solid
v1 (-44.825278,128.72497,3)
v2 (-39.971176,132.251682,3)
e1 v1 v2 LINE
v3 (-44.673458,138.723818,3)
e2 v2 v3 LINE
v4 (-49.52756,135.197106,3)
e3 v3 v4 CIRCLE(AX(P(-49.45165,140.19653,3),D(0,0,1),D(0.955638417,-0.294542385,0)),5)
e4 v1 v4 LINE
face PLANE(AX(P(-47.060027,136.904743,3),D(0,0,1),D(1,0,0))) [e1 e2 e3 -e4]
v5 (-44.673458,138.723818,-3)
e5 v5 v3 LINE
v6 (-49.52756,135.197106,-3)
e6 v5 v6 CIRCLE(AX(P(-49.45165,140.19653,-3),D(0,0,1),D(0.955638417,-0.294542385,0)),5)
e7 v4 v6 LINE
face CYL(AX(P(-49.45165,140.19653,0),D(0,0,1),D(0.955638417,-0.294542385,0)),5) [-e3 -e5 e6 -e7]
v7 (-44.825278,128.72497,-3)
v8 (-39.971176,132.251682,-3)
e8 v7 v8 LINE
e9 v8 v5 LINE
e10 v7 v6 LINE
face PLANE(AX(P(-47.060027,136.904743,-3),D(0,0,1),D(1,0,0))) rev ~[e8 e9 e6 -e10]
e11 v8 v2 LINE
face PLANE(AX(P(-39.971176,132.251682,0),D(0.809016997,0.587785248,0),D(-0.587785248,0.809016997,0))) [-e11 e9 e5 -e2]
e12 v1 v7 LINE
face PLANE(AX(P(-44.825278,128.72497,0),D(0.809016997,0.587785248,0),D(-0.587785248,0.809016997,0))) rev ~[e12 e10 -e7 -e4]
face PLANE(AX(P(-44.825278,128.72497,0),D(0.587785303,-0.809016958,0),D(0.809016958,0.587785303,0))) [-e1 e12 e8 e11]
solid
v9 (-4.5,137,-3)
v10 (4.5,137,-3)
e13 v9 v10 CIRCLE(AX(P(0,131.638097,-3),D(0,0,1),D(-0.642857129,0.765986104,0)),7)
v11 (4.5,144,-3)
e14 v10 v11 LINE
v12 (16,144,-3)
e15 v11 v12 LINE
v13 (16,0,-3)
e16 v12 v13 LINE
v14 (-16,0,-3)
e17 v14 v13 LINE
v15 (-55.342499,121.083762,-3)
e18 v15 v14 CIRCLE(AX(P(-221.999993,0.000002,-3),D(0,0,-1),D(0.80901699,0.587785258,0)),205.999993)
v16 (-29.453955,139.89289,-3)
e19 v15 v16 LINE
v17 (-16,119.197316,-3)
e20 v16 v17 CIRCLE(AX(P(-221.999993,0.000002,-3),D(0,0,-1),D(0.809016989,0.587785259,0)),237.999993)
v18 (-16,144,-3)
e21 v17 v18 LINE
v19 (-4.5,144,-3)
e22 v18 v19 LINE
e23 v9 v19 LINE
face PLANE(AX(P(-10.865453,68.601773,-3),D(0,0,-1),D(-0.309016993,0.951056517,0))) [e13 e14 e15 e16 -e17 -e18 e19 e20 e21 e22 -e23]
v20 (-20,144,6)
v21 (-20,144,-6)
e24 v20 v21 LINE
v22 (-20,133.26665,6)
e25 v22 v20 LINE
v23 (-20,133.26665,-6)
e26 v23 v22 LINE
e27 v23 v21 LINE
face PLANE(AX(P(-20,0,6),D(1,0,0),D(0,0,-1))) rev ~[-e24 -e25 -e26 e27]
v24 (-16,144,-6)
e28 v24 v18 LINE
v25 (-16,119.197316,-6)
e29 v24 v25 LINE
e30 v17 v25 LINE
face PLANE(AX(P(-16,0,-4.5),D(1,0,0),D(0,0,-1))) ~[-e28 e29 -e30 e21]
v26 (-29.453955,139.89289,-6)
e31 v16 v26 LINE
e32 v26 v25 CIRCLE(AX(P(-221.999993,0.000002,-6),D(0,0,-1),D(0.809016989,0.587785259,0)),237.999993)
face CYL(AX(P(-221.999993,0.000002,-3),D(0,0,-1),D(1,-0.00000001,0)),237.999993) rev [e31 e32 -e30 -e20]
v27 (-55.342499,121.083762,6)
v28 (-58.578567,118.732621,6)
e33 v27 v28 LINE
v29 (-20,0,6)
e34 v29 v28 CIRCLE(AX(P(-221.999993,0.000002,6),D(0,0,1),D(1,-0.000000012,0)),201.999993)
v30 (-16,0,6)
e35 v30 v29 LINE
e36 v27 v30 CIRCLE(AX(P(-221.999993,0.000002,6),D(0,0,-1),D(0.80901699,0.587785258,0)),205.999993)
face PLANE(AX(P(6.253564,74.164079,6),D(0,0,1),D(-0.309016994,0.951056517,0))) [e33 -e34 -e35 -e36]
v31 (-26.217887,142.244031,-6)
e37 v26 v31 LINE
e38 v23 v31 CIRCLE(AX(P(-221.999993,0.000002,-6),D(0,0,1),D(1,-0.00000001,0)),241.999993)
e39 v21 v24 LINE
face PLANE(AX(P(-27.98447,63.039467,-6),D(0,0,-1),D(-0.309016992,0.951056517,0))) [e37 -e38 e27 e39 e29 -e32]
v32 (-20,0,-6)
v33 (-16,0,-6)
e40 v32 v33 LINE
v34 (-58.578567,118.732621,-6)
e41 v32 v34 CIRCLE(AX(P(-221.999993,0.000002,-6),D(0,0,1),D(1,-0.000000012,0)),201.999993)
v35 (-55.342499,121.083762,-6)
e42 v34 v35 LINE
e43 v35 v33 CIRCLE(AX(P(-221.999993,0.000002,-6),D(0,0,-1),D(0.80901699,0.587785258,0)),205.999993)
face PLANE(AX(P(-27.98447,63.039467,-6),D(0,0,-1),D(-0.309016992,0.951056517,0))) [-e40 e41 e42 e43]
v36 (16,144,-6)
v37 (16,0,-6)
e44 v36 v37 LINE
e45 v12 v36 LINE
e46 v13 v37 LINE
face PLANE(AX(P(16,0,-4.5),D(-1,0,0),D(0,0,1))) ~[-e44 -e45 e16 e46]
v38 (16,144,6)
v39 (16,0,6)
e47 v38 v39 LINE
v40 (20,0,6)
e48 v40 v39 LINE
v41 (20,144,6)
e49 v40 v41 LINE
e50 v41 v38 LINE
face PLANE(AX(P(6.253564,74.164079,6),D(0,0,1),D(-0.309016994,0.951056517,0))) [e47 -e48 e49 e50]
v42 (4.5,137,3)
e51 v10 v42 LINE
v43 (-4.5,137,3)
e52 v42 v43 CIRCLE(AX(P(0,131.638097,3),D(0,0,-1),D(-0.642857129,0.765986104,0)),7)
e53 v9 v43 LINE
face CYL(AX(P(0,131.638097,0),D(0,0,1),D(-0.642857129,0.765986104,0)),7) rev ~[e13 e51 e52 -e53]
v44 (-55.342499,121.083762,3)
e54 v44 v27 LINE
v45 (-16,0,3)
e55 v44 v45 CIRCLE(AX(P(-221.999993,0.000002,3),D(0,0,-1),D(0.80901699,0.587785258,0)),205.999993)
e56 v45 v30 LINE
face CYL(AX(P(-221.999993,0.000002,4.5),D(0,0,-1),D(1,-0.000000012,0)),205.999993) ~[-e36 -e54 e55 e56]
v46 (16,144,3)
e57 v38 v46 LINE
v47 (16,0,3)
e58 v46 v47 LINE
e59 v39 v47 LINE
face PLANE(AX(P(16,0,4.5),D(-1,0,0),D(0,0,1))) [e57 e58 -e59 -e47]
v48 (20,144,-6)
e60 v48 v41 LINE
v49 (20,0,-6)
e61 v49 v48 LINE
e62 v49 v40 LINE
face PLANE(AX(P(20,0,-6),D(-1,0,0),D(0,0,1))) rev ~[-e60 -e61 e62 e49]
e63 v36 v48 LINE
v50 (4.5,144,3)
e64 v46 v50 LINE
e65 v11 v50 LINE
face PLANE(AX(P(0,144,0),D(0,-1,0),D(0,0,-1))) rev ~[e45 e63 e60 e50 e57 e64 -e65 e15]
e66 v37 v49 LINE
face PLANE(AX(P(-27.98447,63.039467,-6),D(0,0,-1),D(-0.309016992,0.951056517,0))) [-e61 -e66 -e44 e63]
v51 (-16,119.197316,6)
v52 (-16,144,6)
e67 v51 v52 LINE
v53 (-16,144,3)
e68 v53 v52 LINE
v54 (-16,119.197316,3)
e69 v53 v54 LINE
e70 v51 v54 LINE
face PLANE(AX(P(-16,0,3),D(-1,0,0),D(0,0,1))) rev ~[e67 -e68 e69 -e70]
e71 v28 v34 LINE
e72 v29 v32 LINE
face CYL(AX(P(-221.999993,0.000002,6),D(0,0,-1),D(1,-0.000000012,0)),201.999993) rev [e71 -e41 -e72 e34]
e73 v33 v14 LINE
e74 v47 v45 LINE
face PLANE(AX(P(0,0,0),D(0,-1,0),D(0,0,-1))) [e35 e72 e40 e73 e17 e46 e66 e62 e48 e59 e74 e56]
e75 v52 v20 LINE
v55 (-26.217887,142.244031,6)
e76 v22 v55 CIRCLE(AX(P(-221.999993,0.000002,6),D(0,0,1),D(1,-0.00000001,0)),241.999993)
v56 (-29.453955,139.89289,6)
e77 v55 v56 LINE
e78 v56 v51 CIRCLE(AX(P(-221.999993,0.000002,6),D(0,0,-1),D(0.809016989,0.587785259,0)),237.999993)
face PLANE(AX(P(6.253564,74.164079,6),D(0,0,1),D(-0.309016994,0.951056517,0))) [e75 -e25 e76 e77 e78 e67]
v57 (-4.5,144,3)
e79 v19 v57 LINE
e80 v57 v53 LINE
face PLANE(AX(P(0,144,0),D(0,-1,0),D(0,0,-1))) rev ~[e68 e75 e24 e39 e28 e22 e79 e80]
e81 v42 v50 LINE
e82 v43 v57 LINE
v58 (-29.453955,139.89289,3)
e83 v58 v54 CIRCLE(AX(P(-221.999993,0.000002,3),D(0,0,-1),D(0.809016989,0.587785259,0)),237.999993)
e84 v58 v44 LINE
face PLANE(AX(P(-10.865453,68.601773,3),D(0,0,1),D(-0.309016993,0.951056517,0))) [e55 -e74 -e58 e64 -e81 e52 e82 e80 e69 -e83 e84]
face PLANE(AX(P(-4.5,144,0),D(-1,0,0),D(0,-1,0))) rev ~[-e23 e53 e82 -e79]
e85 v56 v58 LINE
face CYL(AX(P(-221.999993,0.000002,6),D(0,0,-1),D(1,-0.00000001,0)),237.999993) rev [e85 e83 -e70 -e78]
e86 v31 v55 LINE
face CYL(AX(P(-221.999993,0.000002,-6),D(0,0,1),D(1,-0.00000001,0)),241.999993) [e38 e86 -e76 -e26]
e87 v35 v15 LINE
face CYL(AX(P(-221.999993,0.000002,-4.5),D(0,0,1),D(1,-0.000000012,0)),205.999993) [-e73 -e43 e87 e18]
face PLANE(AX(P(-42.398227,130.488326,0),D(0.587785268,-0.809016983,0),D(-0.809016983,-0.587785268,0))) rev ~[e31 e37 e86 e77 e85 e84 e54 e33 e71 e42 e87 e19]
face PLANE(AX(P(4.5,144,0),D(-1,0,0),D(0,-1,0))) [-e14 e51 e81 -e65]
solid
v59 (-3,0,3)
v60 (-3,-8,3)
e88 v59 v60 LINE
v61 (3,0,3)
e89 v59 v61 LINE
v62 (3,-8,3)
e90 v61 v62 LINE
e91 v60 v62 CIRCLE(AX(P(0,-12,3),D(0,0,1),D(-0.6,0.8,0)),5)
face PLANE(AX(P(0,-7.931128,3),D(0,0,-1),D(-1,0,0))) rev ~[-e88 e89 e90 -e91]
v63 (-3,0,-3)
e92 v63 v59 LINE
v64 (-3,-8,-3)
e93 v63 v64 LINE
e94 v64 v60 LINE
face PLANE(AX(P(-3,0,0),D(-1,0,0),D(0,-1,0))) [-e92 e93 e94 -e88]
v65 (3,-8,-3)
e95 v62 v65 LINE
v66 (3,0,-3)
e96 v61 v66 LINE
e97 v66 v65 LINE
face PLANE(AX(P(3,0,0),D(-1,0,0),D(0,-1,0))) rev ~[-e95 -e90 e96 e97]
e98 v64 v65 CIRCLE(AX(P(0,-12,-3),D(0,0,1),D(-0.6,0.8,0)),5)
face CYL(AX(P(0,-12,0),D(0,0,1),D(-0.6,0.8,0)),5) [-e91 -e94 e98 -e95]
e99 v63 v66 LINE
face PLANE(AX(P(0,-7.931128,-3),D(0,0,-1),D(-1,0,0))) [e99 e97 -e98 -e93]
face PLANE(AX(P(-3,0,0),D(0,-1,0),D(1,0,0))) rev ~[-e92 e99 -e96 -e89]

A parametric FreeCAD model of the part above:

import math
import FreeCAD as App
import Part
import Sketcher

V = App.Vector
Q = App.Units.Quantity


def add_polygon(sketch, points):
    """Adds a closed chain of lines whose ends are joined by coincident constraints."""
    first, n = sketch.GeometryCount, len(points)
    for a, b in zip(points, points[1:] + points[:1]):
        sketch.addGeometry(Part.LineSegment(App.Vector(*a, 0), App.Vector(*b, 0)), False)
    for i in range(n):
        sketch.addConstraint(Sketcher.Constraint("Coincident", first + i, 2, first + (i + 1) % n, 1))

doc = App.newDocument("Part")
body = doc.addObject("PartDesign::Body", "Body")

sketch1 = body.newObject("Sketcher::SketchObject", "Sketch")
sketch1.AttachmentSupport = (doc.getObject("XZ_Plane"), [""])
sketch1.MapMode = "FlatFace"
add_polygon(sketch1, [(-20, 6), (-20, -6), (-16, -6), (-16, -3), (16, -3), (16, -6), (20, -6), (20, 6), (16, 6), (16, 3), (-16, 3), (-16, 6)])
sketch1.addConstraint([
    Sketcher.Constraint("Vertical", 0),
    Sketcher.Constraint("Horizontal", 1),
    Sketcher.Constraint("Vertical", 2),
    Sketcher.Constraint("Horizontal", 3),
    Sketcher.Constraint("Vertical", 4),
    Sketcher.Constraint("Horizontal", 5),
    Sketcher.Constraint("Vertical", 6),
    Sketcher.Constraint("Horizontal", 7),
    Sketcher.Constraint("Vertical", 8),
    Sketcher.Constraint("Horizontal", 9),
    Sketcher.Constraint("Vertical", 10),
    Sketcher.Constraint("Horizontal", 11),
    Sketcher.Constraint("Symmetric", 0, 2, 6, 2, -1, 1),
    Sketcher.Constraint("Symmetric", 2, 2, 8, 2, -1, 1),
    Sketcher.Constraint("Symmetric", 4, 2, 10, 2, -1, 1),
    Sketcher.Constraint("Symmetric", 1, 2, 4, 2, -2),
    Sketcher.Constraint("DistanceX", 1, 1, 1, 2, Q("4 mm")),
    Sketcher.Constraint("DistanceX", 3, 1, 3, 2, Q("32 mm")),
    Sketcher.Constraint("DistanceY", 0, 2, 0, 1, Q("12 mm")),
    Sketcher.Constraint("DistanceY", 2, 1, 2, 2, Q("3 mm")),
])

sketch2 = body.newObject("Sketcher::SketchObject", "Sketch001")
sketch2.AttachmentSupport = (doc.getObject("XY_Plane"), [""])
sketch2.MapMode = "FlatFace"
sketch2.addGeometry(Part.ArcOfCircle(Part.Circle(V(-222, 0, 0), V(0, 0, 1), 222), math.radians(0), math.radians(36)), False)
sketch2.addConstraint([
    Sketcher.Constraint("Coincident", 0, 1, -1, 1),
    Sketcher.Constraint("Radius", 0, Q("221.999993 mm")),
    Sketcher.Constraint("DistanceX", 0, 2, -1, 1, Q("42.398227 mm")),
    Sketcher.Constraint("DistanceY", -1, 1, 0, 2, Q("130.488326 mm")),
])
doc.recompute()

additivepipe = body.newObject("PartDesign::AdditivePipe", "AdditivePipe")
additivepipe.Profile = sketch1
additivepipe.Spine = (sketch2, ["Edge1"])

sketch3 = body.newObject("Sketcher::SketchObject", "Sketch002")
sketch3.AttachmentSupport = (doc.getObject("XZ_Plane"), [""])
sketch3.MapMode = "FlatFace"
add_polygon(sketch3, [(-20, 6), (-20, -6), (-16, -6), (-16, -3), (16, -3), (16, -6), (20, -6), (20, 6), (16, 6), (16, 3), (-16, 3), (-16, 6)])
sketch3.addConstraint([
    Sketcher.Constraint("Vertical", 0),
    Sketcher.Constraint("Horizontal", 1),
    Sketcher.Constraint("Vertical", 2),
    Sketcher.Constraint("Horizontal", 3),
    Sketcher.Constraint("Vertical", 4),
    Sketcher.Constraint("Horizontal", 5),
    Sketcher.Constraint("Vertical", 6),
    Sketcher.Constraint("Horizontal", 7),
    Sketcher.Constraint("Vertical", 8),
    Sketcher.Constraint("Horizontal", 9),
    Sketcher.Constraint("Vertical", 10),
    Sketcher.Constraint("Horizontal", 11),
    Sketcher.Constraint("Symmetric", 0, 2, 6, 2, -1, 1),
    Sketcher.Constraint("Symmetric", 2, 2, 8, 2, -1, 1),
    Sketcher.Constraint("Symmetric", 4, 2, 10, 2, -1, 1),
    Sketcher.Constraint("Symmetric", 1, 2, 4, 2, -2),
    Sketcher.Constraint("DistanceX", 1, 1, 1, 2, Q("4 mm")),
    Sketcher.Constraint("DistanceX", 3, 1, 3, 2, Q("32 mm")),
    Sketcher.Constraint("DistanceY", 0, 2, 0, 1, Q("12 mm")),
    Sketcher.Constraint("DistanceY", 2, 1, 2, 2, Q("3 mm")),
])

sketch4 = body.newObject("Sketcher::SketchObject", "Sketch003")
sketch4.AttachmentSupport = (doc.getObject("XY_Plane"), [""])
sketch4.MapMode = "FlatFace"
sketch4.addGeometry(Part.LineSegment(V(0, 0, 0), V(0, 144, 0)), False)
sketch4.addConstraint([
    Sketcher.Constraint("Vertical", 0),
    Sketcher.Constraint("Coincident", 0, 1, -1, 1),
    Sketcher.Constraint("DistanceY", 0, 1, 0, 2, Q("144 mm")),
])
doc.recompute()

additivepipe2 = body.newObject("PartDesign::AdditivePipe", "AdditivePipe001")
additivepipe2.Profile = sketch3
additivepipe2.Spine = (sketch4, ["Edge1"])

sketch5 = body.newObject("Sketcher::SketchObject", "Sketch004")
sketch5.AttachmentSupport = (doc.getObject("XZ_Plane"), [""])
sketch5.MapMode = "FlatFace"
add_polygon(sketch5, [(-16, 6), (-16, 3), (16, 3), (16, 6)])
sketch5.addConstraint([
    Sketcher.Constraint("Vertical", 0),
    Sketcher.Constraint("Horizontal", 1),
    Sketcher.Constraint("Vertical", 2),
    Sketcher.Constraint("Horizontal", 3),
    Sketcher.Constraint("DistanceX", 1, 1, 1, 2, Q("32 mm")),
    Sketcher.Constraint("DistanceY", 0, 2, 0, 1, Q("3 mm")),
    Sketcher.Constraint("DistanceX", 0, 2, -1, 1, Q("16 mm")),
    Sketcher.Constraint("DistanceY", -1, 1, 0, 2, Q("3 mm")),
])

sketch6 = body.newObject("Sketcher::SketchObject", "Sketch005")
sketch6.AttachmentSupport = (doc.getObject("XY_Plane"), [""])
sketch6.MapMode = "FlatFace"
sketch6.addGeometry(Part.ArcOfCircle(Part.Circle(V(-222, 0, 0), V(0, 0, 1), 222), math.radians(0), math.radians(36)), False)
sketch6.addConstraint([
    Sketcher.Constraint("Coincident", 0, 1, -1, 1),
    Sketcher.Constraint("Radius", 0, Q("221.999993 mm")),
    Sketcher.Constraint("DistanceX", 0, 2, -1, 1, Q("42.398227 mm")),
    Sketcher.Constraint("DistanceY", -1, 1, 0, 2, Q("130.488326 mm")),
])
doc.recompute()

subtractivepipe = body.newObject("PartDesign::SubtractivePipe", "SubtractivePipe")
subtractivepipe.Profile = sketch5
subtractivepipe.Spine = (sketch6, ["Edge1"])

sketch7 = body.newObject("Sketcher::SketchObject", "Sketch006")
sketch7.AttachmentSupport = (doc.getObject("XZ_Plane"), [""])
sketch7.MapMode = "FlatFace"
add_polygon(sketch7, [(-16, 6), (-16, 3), (16, 3), (16, 6)])
sketch7.addConstraint([
    Sketcher.Constraint("Vertical", 0),
    Sketcher.Constraint("Horizontal", 1),
    Sketcher.Constraint("Vertical", 2),
    Sketcher.Constraint("Horizontal", 3),
    Sketcher.Constraint("DistanceX", 1, 1, 1, 2, Q("32 mm")),
    Sketcher.Constraint("DistanceY", 0, 2, 0, 1, Q("3 mm")),
    Sketcher.Constraint("DistanceX", 0, 2, -1, 1, Q("16 mm")),
    Sketcher.Constraint("DistanceY", -1, 1, 0, 2, Q("3 mm")),
])

sketch8 = body.newObject("Sketcher::SketchObject", "Sketch007")
sketch8.AttachmentSupport = (doc.getObject("XY_Plane"), [""])
sketch8.MapMode = "FlatFace"
sketch8.addGeometry(Part.LineSegment(V(0, 0, 0), V(0, 144, 0)), False)
sketch8.addConstraint([
    Sketcher.Constraint("Vertical", 0),
    Sketcher.Constraint("Coincident", 0, 1, -1, 1),
    Sketcher.Constraint("DistanceY", 0, 1, 0, 2, Q("144 mm")),
])
doc.recompute()

subtractivepipe2 = body.newObject("PartDesign::SubtractivePipe", "SubtractivePipe001")
subtractivepipe2.Profile = sketch7
subtractivepipe2.Spine = (sketch8, ["Edge1"])
doc.recompute()

mirrored = body.newObject("PartDesign::Mirrored", "Mirrored")
mirrored.Originals = [subtractivepipe]
mirrored.MirrorPlane = (doc.getObject("XY_Plane"), [""])
body.Tip = mirrored
doc.recompute()

mirrored2 = body.newObject("PartDesign::Mirrored", "Mirrored001")
mirrored2.Originals = [subtractivepipe2]
mirrored2.MirrorPlane = (doc.getObject("XY_Plane"), [""])
body.Tip = mirrored2

sketch9 = body.newObject("Sketcher::SketchObject", "Sketch008")
sketch9.AttachmentSupport = (doc.getObject("XY_Plane"), [""])
sketch9.MapMode = "FlatFace"
sketch9.addGeometry([
    Part.LineSegment(V(4, 144, 0), V(-4, 144, 0)),
    Part.LineSegment(V(-4, 144, 0), V(-4, 137, 0)),
    Part.ArcOfCircle(Part.Circle(V(0, 132, 0), V(0, 0, 1), 7), math.radians(130), math.radians(410)),
    Part.LineSegment(V(4, 137, 0), V(4, 144, 0)),
], False)
sketch9.addConstraint([
    Sketcher.Constraint("Coincident", 0, 2, 1, 1),
    Sketcher.Constraint("Coincident", 1, 2, 2, 1),
    Sketcher.Constraint("Coincident", 2, 2, 3, 1),
    Sketcher.Constraint("Coincident", 3, 2, 0, 1),
    Sketcher.Constraint("Horizontal", 0),
    Sketcher.Constraint("Vertical", 1),
    Sketcher.Constraint("Vertical", 3),
    Sketcher.Constraint("Symmetric", 1, 2, 2, 2, -2),
    Sketcher.Constraint("Radius", 2, Q("7 mm")),
    Sketcher.Constraint("DistanceX", 0, 2, 0, 1, Q("9 mm")),
    Sketcher.Constraint("DistanceY", 1, 2, 1, 1, Q("7 mm")),
    Sketcher.Constraint("DistanceY", -1, 1, 0, 2, Q("144 mm")),
])
pocket1 = body.newObject("PartDesign::Pocket", "Pocket")
pocket1.Profile = sketch9
pocket1.Type = "ThroughAll"
pocket1.Midplane = True
body2 = doc.addObject("PartDesign::Body", "Body001")

sketch10 = body2.newObject("Sketcher::SketchObject", "Sketch009")
sketch10.AttachmentSupport = (doc.getObject("XY_Plane001"), [""])
sketch10.MapMode = "FlatFace"
sketch10.addGeometry([
    Part.LineSegment(V(3, 0, 0), V(-3, 0, 0)),
    Part.LineSegment(V(-3, 0, 0), V(-3, -8, 0)),
    Part.ArcOfCircle(Part.Circle(V(0, -12, 0), V(0, 0, 1), 5), math.radians(127), math.radians(413)),
    Part.LineSegment(V(3, -8, 0), V(3, 0, 0)),
], False)
sketch10.addConstraint([
    Sketcher.Constraint("Coincident", 0, 2, 1, 1),
    Sketcher.Constraint("Coincident", 1, 2, 2, 1),
    Sketcher.Constraint("Coincident", 2, 2, 3, 1),
    Sketcher.Constraint("Coincident", 3, 2, 0, 1),
    Sketcher.Constraint("Horizontal", 0),
    Sketcher.Constraint("Vertical", 1),
    Sketcher.Constraint("Vertical", 3),
    Sketcher.Constraint("Symmetric", 0, 2, 3, 2, -1, 1),
    Sketcher.Constraint("PointOnObject", 2, 3, -2),
    Sketcher.Constraint("Radius", 2, Q("5 mm")),
    Sketcher.Constraint("DistanceX", 0, 2, 0, 1, Q("6 mm")),
    Sketcher.Constraint("DistanceY", 1, 2, 1, 1, Q("8 mm")),
])
pad1 = body2.newObject("PartDesign::Pad", "Pad")
pad1.Profile = sketch10
pad1.Length = 6
pad1.Midplane = True
body3 = doc.addObject("PartDesign::Body", "Body002")

sketch11 = body3.newObject("Sketcher::SketchObject", "Sketch010")
sketch11.AttachmentSupport = (doc.getObject("XY_Plane002"), [""])
sketch11.MapMode = "FlatFace"
sketch11.addGeometry([
    Part.LineSegment(V(-45, 129, 0), V(-40, 132, 0)),
    Part.LineSegment(V(-40, 132, 0), V(-45, 139, 0)),
    Part.ArcOfCircle(Part.Circle(V(-49, 140, 0), V(0, 0, 1), 5), math.radians(-17), math.radians(269)),
    Part.LineSegment(V(-50, 135, 0), V(-45, 129, 0)),
], False)
sketch11.addConstraint([
    Sketcher.Constraint("Coincident", 0, 2, 1, 1),
    Sketcher.Constraint("Coincident", 1, 2, 2, 1),
    Sketcher.Constraint("Coincident", 2, 2, 3, 1),
    Sketcher.Constraint("Coincident", 3, 2, 0, 1),
    Sketcher.Constraint("Perpendicular", 0, 1),
    Sketcher.Constraint("Parallel", 1, 3),
    Sketcher.Constraint("Equal", 1, 3),
    Sketcher.Constraint("Radius", 2, Q("5 mm")),
    Sketcher.Constraint("Angle", 0, Q("36.000004 deg")),
    Sketcher.Constraint("Distance", 0, Q("6 mm")),
    Sketcher.Constraint("Distance", 1, Q("8 mm")),
    Sketcher.Constraint("DistanceX", 2, 3, -1, 1, Q("49.45165 mm")),
    Sketcher.Constraint("DistanceY", -1, 1, 2, 3, Q("140.19653 mm")),
])
pad2 = body3.newObject("PartDesign::Pad", "Pad001")
pad2.Profile = sketch11
pad2.Length = 6
pad2.Midplane = True

doc.recompute()
